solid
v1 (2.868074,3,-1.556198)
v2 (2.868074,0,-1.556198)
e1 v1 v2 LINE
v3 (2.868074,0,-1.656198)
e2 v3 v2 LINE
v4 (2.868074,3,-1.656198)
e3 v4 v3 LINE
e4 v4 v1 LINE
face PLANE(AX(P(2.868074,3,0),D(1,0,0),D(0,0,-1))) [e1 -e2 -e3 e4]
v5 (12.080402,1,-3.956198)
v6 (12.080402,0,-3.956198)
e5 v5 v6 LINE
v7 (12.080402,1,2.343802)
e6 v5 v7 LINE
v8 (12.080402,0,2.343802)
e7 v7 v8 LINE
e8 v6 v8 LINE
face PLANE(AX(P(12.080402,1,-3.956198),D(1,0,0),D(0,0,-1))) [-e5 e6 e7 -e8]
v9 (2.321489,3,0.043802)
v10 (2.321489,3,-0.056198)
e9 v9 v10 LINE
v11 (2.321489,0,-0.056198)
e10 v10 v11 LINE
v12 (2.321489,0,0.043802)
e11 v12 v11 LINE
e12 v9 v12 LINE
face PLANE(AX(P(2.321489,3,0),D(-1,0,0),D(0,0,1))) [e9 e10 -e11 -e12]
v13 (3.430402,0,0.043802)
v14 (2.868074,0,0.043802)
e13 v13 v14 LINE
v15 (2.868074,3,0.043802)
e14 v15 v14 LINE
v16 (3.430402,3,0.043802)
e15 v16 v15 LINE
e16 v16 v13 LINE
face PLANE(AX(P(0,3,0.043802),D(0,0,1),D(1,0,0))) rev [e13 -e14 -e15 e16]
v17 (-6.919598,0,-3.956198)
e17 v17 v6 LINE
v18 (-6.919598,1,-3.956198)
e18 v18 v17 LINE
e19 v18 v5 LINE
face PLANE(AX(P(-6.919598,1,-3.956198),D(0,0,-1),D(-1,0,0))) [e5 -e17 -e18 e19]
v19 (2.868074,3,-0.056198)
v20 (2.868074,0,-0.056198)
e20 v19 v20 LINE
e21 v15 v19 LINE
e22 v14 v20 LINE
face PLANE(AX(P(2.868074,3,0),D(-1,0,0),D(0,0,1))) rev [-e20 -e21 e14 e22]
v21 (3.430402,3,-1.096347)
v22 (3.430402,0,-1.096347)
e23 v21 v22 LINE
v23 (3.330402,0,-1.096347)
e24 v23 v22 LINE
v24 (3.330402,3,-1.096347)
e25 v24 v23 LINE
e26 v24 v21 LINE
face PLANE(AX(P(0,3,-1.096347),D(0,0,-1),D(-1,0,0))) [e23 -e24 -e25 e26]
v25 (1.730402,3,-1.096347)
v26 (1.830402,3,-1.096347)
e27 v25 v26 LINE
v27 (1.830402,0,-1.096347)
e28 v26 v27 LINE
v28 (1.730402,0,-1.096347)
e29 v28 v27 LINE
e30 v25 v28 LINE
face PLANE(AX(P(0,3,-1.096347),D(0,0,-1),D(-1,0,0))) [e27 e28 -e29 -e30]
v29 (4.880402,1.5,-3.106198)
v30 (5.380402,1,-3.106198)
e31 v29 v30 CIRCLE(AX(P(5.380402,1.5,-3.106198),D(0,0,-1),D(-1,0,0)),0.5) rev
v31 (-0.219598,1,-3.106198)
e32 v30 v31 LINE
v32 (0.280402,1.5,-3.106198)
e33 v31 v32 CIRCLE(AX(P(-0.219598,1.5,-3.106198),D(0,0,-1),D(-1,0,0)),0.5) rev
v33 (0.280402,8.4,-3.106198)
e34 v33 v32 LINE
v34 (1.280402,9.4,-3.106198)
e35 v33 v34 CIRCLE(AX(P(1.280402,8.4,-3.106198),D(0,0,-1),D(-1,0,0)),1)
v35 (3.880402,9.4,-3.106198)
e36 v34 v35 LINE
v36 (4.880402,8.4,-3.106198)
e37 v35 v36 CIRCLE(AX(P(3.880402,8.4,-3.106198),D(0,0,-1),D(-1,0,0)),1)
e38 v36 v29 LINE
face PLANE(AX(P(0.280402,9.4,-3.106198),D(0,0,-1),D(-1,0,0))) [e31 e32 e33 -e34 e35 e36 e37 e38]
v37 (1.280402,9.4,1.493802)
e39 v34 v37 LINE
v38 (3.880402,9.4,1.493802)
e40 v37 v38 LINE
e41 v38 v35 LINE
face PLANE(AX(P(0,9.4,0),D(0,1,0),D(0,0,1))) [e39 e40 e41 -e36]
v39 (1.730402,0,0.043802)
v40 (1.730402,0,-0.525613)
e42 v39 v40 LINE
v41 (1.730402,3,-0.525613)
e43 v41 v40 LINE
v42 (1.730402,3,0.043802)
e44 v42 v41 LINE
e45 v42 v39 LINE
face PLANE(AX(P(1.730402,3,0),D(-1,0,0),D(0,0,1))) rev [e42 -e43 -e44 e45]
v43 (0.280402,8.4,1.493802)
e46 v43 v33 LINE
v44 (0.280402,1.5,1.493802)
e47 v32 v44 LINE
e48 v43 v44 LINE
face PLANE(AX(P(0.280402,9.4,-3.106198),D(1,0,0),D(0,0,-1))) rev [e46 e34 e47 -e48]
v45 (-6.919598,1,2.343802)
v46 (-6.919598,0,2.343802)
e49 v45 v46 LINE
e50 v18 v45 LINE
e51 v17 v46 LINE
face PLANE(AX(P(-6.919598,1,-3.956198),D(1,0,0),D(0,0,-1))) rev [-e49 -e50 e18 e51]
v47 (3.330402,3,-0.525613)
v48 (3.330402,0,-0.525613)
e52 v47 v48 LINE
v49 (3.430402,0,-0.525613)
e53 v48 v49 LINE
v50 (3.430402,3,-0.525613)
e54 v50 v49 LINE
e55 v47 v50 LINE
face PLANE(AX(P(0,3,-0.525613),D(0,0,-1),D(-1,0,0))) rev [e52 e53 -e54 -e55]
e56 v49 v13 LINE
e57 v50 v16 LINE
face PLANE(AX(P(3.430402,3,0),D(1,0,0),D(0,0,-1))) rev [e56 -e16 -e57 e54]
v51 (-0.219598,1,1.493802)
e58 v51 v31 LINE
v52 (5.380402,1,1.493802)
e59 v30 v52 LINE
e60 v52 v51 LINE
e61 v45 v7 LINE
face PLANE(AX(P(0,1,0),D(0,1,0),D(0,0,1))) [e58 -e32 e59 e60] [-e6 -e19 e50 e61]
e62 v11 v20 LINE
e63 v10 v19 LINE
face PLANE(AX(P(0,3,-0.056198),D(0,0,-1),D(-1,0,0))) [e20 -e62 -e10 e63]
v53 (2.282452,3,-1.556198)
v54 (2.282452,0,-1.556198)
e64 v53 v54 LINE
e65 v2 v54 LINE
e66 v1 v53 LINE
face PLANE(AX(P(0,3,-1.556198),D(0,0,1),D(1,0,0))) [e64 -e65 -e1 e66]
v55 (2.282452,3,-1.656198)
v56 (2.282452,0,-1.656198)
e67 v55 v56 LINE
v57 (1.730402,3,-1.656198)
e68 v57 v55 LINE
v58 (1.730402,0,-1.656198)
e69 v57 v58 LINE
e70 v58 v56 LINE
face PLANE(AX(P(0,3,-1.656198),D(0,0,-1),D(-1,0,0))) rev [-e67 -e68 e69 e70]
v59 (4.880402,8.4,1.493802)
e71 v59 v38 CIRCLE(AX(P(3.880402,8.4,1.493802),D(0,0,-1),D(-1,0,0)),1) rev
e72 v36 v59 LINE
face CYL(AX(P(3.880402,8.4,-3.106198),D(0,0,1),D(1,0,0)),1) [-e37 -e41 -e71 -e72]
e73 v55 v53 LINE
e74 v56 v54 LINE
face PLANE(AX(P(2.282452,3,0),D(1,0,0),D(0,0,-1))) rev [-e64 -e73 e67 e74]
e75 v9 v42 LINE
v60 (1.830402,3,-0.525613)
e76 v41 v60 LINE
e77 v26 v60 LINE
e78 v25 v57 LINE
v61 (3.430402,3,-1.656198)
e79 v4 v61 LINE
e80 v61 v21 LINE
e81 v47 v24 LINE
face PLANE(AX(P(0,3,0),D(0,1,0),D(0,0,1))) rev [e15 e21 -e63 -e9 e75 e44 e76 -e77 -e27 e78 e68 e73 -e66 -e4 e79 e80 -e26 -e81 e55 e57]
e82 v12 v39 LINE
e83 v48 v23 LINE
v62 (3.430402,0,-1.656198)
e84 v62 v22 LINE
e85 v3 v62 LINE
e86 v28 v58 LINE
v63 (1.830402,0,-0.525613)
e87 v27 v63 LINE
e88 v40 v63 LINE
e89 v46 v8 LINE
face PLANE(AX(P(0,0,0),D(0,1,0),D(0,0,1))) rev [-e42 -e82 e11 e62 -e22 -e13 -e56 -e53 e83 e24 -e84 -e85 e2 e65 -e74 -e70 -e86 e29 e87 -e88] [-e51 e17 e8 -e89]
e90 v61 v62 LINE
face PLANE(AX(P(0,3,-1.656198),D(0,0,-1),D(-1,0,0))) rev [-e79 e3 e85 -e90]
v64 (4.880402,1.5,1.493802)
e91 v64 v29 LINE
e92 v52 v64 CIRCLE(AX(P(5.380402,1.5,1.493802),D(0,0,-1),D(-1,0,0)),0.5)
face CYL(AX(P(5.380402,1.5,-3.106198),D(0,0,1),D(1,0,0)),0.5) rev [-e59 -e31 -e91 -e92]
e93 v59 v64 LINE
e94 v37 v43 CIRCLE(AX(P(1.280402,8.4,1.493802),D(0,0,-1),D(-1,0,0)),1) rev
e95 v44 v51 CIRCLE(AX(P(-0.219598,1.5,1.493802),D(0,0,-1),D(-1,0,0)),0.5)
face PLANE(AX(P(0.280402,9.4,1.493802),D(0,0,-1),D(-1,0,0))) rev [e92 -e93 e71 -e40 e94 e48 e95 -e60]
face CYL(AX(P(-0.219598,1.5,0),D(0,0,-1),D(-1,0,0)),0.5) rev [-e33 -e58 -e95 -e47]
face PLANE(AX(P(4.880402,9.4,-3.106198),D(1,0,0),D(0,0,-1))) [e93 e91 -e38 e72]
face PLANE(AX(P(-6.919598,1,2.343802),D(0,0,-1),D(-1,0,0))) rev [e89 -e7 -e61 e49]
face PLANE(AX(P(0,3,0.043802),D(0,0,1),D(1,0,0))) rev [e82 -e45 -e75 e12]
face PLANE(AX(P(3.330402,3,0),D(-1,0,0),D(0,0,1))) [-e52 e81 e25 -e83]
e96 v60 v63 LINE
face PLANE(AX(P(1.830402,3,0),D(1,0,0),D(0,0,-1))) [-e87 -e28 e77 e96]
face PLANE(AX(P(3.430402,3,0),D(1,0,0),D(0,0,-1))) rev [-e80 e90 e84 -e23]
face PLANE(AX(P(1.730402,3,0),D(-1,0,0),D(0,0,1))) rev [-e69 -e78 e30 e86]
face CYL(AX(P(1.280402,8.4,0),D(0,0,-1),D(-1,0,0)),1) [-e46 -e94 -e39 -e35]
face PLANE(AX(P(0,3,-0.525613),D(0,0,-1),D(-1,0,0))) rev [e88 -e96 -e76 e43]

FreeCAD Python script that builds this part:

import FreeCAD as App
import Part
import Sketcher
Q = App.Units.Quantity


def edges_at(feature, points):
    """Names of the edges that pass closest to the given points."""
    edges = feature.Shape.Edges
    near = lambda p: min(range(len(edges)), key=lambda i: edges[i].distToShape(Part.Vertex(*p))[0])
    return sorted({f"Edge{near(p) + 1}" for p in points})

doc = App.newDocument("Part")
body = doc.addObject("PartDesign::Body", "Body")

sketch1 = body.newObject("Sketcher::SketchObject", "Sketch")
sketch1.AttachmentSupport = (doc.getObject("XZ_Plane"), [""])
sketch1.MapMode = "FlatFace"
sketch1.addGeometry([
    Part.LineSegment(App.Vector(-7, -4, 0), App.Vector(-7, 2, 0)),
    Part.LineSegment(App.Vector(-7, 2, 0), App.Vector(12, 2, 0)),
    Part.LineSegment(App.Vector(12, 2, 0), App.Vector(12, -4, 0)),
    Part.LineSegment(App.Vector(12, -4, 0), App.Vector(-7, -4, 0)),
], False)
sketch1.addConstraint([
    Sketcher.Constraint("Coincident", 0, 2, 1, 1),
    Sketcher.Constraint("Coincident", 1, 2, 2, 1),
    Sketcher.Constraint("Coincident", 2, 2, 3, 1),
    Sketcher.Constraint("Coincident", 3, 2, 0, 1),
    Sketcher.Constraint("Vertical", 0),
    Sketcher.Constraint("Horizontal", 1),
    Sketcher.Constraint("Vertical", 2),
    Sketcher.Constraint("Horizontal", 3),
    Sketcher.Constraint("DistanceX", 1, 1, 1, 2, Q("19 mm")),
    Sketcher.Constraint("DistanceY", 0, 1, 0, 2, Q("6.3 mm")),
    Sketcher.Constraint("DistanceX", 0, 2, -1, 1, Q("6.919598 mm")),
    Sketcher.Constraint("DistanceY", -1, 1, 0, 2, Q("2.343802 mm")),
])
pad1 = body.newObject("PartDesign::Pad", "Pad")
pad1.Profile = sketch1
pad1.Length = 1
pad1.Reversed = True

sketch2 = body.newObject("Sketcher::SketchObject", "Sketch001")
sketch2.AttachmentSupport = (doc.getObject("XZ_Plane"), [""])
sketch2.MapMode = "FlatFace"
sketch2.addGeometry([
    Part.LineSegment(App.Vector(0.3, -3.1, 0), App.Vector(0.3, 1.5, 0)),
    Part.LineSegment(App.Vector(0.3, 1.5, 0), App.Vector(4.9, 1.5, 0)),
    Part.LineSegment(App.Vector(4.9, 1.5, 0), App.Vector(4.9, -3.1, 0)),
    Part.LineSegment(App.Vector(4.9, -3.1, 0), App.Vector(0.3, -3.1, 0)),
], False)
sketch2.addConstraint([
    Sketcher.Constraint("Coincident", 0, 2, 1, 1),
    Sketcher.Constraint("Coincident", 1, 2, 2, 1),
    Sketcher.Constraint("Coincident", 2, 2, 3, 1),
    Sketcher.Constraint("Coincident", 3, 2, 0, 1),
    Sketcher.Constraint("Vertical", 0),
    Sketcher.Constraint("Horizontal", 1),
    Sketcher.Constraint("Vertical", 2),
    Sketcher.Constraint("Horizontal", 3),
    Sketcher.Constraint("Equal", 3, 0),
    Sketcher.Constraint("DistanceX", 1, 1, 1, 2, Q("4.6 mm")),
    Sketcher.Constraint("DistanceX", -1, 1, 0, 2, Q("0.280402 mm")),
    Sketcher.Constraint("DistanceY", -1, 1, 0, 2, Q("1.493802 mm")),
])
pad2 = body.newObject("PartDesign::Pad", "Pad001")
pad2.Profile = sketch2
pad2.Length = 9.4
pad2.Reversed = True
doc.recompute()

fillet = body.newObject("PartDesign::Fillet", "Fillet")
fillet.Base = (pad2, edges_at(pad2, [(4.88, 9.4, -0.806)]))
fillet.Radius = 1
doc.recompute()

fillet2 = body.newObject("PartDesign::Fillet", "Fillet001")
fillet2.Base = (fillet, edges_at(fillet, [(0.28, 9.4, -0.806)]))
fillet2.Radius = 1
doc.recompute()

fillet3 = body.newObject("PartDesign::Fillet", "Fillet002")
fillet3.Base = (fillet2, edges_at(fillet2, [(4.88, 1, -0.806)]))
fillet3.Radius = 0.5
doc.recompute()

fillet4 = body.newObject("PartDesign::Fillet", "Fillet003")
fillet4.Base = (fillet3, edges_at(fillet3, [(0.28, 1, -0.806)]))
fillet4.Radius = 0.5

sketch3 = body.newObject("Sketcher::SketchObject", "Sketch002")
sketch3.AttachmentSupport = (doc.getObject("XZ_Plane"), [""])
sketch3.MapMode = "FlatFace"
sketch3.addGeometry([
    Part.LineSegment(App.Vector(3.33, -0.53, 0), App.Vector(3.33, -1.1, 0)),
    Part.LineSegment(App.Vector(3.33, -1.1, 0), App.Vector(3.43, -1.1, 0)),
    Part.LineSegment(App.Vector(3.43, -1.1, 0), App.Vector(3.43, -1.66, 0)),
    Part.LineSegment(App.Vector(3.43, -1.66, 0), App.Vector(2.87, -1.66, 0)),
    Part.LineSegment(App.Vector(2.87, -1.66, 0), App.Vector(2.87, -1.56, 0)),
    Part.LineSegment(App.Vector(2.87, -1.56, 0), App.Vector(2.28, -1.56, 0)),
    Part.LineSegment(App.Vector(2.28, -1.56, 0), App.Vector(2.28, -1.66, 0)),
    Part.LineSegment(App.Vector(2.28, -1.66, 0), App.Vector(1.73, -1.66, 0)),
    Part.LineSegment(App.Vector(1.73, -1.66, 0), App.Vector(1.73, -1.1, 0)),
    Part.LineSegment(App.Vector(1.73, -1.1, 0), App.Vector(1.83, -1.1, 0)),
    Part.LineSegment(App.Vector(1.83, -1.1, 0), App.Vector(1.83, -0.53, 0)),
    Part.LineSegment(App.Vector(1.83, -0.53, 0), App.Vector(1.73, -0.53, 0)),
    Part.LineSegment(App.Vector(1.73, -0.53, 0), App.Vector(1.73, 0.04, 0)),
    Part.LineSegment(App.Vector(1.73, 0.04, 0), App.Vector(2.32, 0.04, 0)),
    Part.LineSegment(App.Vector(2.32, 0.04, 0), App.Vector(2.32, -0.06, 0)),
    Part.LineSegment(App.Vector(2.32, -0.06, 0), App.Vector(2.87, -0.06, 0)),
    Part.LineSegment(App.Vector(2.87, -0.06, 0), App.Vector(2.87, 0.04, 0)),
    Part.LineSegment(App.Vector(2.87, 0.04, 0), App.Vector(3.43, 0.04, 0)),
    Part.LineSegment(App.Vector(3.43, 0.04, 0), App.Vector(3.43, -0.53, 0)),
    Part.LineSegment(App.Vector(3.43, -0.53, 0), App.Vector(3.33, -0.53, 0)),
], False)
sketch3.addConstraint([
    Sketcher.Constraint("Coincident", 0, 2, 1, 1),
    Sketcher.Constraint("Coincident", 1, 2, 2, 1),
    Sketcher.Constraint("Coincident", 2, 2, 3, 1),
    Sketcher.Constraint("Coincident", 3, 2, 4, 1),
    Sketcher.Constraint("Coincident", 4, 2, 5, 1),
    Sketcher.Constraint("Coincident", 5, 2, 6, 1),
    Sketcher.Constraint("Coincident", 6, 2, 7, 1),
    Sketcher.Constraint("Coincident", 7, 2, 8, 1),
    Sketcher.Constraint("Coincident", 8, 2, 9, 1),
    Sketcher.Constraint("Coincident", 9, 2, 10, 1),
    Sketcher.Constraint("Coincident", 10, 2, 11, 1),
    Sketcher.Constraint("Coincident", 11, 2, 12, 1),
    Sketcher.Constraint("Coincident", 12, 2, 13, 1),
    Sketcher.Constraint("Coincident", 13, 2, 14, 1),
    Sketcher.Constraint("Coincident", 14, 2, 15, 1),
    Sketcher.Constraint("Coincident", 15, 2, 16, 1),
    Sketcher.Constraint("Coincident", 16, 2, 17, 1),
    Sketcher.Constraint("Coincident", 17, 2, 18, 1),
    Sketcher.Constraint("Coincident", 18, 2, 19, 1),
    Sketcher.Constraint("Coincident", 19, 2, 0, 1),
    Sketcher.Constraint("Vertical", 0),
    Sketcher.Constraint("Horizontal", 1),
    Sketcher.Constraint("Vertical", 2),
    Sketcher.Constraint("Horizontal", 3),
    Sketcher.Constraint("Vertical", 4),
    Sketcher.Constraint("Horizontal", 5),
    Sketcher.Constraint("Vertical", 6),
    Sketcher.Constraint("Horizontal", 7),
    Sketcher.Constraint("Vertical", 8),
    Sketcher.Constraint("Horizontal", 9),
    Sketcher.Constraint("Vertical", 10),
    Sketcher.Constraint("Horizontal", 11),
    Sketcher.Constraint("Vertical", 12),
    Sketcher.Constraint("Horizontal", 13),
    Sketcher.Constraint("Vertical", 14),
    Sketcher.Constraint("Horizontal", 15),
    Sketcher.Constraint("Vertical", 16),
    Sketcher.Constraint("Horizontal", 17),
    Sketcher.Constraint("Vertical", 18),
    Sketcher.Constraint("Horizontal", 19),
    Sketcher.Constraint("Horizontal", 3, 2, 6, 2),
    Sketcher.Constraint("Horizontal", 1, 2, 8, 2),
    Sketcher.Constraint("Horizontal", 13, 2, 16, 2),
    Sketcher.Constraint("Horizontal", 11, 2, 18, 2),
    Sketcher.Constraint("Vertical", 8, 2, 11, 2),
    Sketcher.Constraint("Vertical", 4, 2, 15, 2),
    Sketcher.Constraint("Vertical", 2, 2, 17, 2),
    Sketcher.Constraint("Equal", 1, 9),
    Sketcher.Constraint("Equal", 19, 4),
    Sketcher.Constraint("Equal", 6, 14),
    Sketcher.Constraint("DistanceX", 1, 1, 1, 2, Q("0.1 mm")),
    Sketcher.Constraint("DistanceX", 7, 2, 0, 2, Q("1.6 mm")),
    Sketcher.Constraint("DistanceY", 5, 2, 12, 2, Q("1.6 mm")),
    Sketcher.Constraint("DistanceX", 7, 2, 7, 1, Q("0.55205 mm")),
    Sketcher.Constraint("DistanceY", 2, 2, 2, 1, Q("0.559851 mm")),
    Sketcher.Constraint("DistanceX", 3, 2, 3, 1, Q("0.562328 mm")),
    Sketcher.Constraint("DistanceX", 13, 1, 13, 2, Q("0.591087 mm")),
    Sketcher.Constraint("DistanceY", 0, 2, 0, 1, Q("0.570734 mm")),
    Sketcher.Constraint("DistanceX", -1, 1, 5, 2, Q("2.282452 mm")),
    Sketcher.Constraint("DistanceY", 0, 2, -1, 1, Q("1.096347 mm")),
])
pocket1 = body.newObject("PartDesign::Pocket", "Pocket")
pocket1.Profile = sketch3
pocket1.Length = 3

doc.recompute()
